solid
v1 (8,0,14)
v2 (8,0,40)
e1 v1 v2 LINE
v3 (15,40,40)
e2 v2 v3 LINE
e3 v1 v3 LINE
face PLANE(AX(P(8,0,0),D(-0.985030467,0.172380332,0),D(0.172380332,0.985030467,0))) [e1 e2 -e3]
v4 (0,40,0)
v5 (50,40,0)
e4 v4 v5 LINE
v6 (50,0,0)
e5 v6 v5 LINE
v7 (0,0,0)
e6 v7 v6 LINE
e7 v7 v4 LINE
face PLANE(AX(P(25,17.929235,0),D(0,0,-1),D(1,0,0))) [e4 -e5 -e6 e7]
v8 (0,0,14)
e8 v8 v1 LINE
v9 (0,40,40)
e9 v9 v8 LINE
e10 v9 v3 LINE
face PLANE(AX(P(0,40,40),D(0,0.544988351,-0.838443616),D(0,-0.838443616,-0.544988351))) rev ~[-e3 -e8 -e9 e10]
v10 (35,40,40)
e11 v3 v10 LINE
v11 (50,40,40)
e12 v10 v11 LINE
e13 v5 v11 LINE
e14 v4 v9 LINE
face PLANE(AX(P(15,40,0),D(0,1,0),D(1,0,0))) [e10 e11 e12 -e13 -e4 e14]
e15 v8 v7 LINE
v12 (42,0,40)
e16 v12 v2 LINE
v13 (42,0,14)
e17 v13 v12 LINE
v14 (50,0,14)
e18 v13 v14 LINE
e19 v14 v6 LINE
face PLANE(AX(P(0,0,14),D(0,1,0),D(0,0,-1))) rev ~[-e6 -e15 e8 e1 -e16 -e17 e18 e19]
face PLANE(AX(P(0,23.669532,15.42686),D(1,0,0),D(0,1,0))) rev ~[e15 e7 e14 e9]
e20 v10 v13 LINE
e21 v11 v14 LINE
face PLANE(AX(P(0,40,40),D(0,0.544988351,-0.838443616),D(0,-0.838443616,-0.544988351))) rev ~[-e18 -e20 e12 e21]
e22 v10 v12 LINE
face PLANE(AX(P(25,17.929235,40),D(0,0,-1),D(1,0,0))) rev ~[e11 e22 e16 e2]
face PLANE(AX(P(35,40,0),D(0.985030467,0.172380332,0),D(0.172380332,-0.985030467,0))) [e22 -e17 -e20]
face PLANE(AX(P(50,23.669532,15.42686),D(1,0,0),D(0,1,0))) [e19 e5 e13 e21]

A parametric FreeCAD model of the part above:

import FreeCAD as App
import Part
import Sketcher


def add_polygon(sketch, points):
    """Adds a closed chain of lines whose ends are joined by coincident constraints."""
    first, n = sketch.GeometryCount, len(points)
    for a, b in zip(points, points[1:] + points[:1]):
        sketch.addGeometry(Part.LineSegment(App.Vector(*a, 0), App.Vector(*b, 0)), False)
    for i in range(n):
        sketch.addConstraint(Sketcher.Constraint("Coincident", first + i, 2, first + (i + 1) % n, 1))

doc = App.newDocument("Part")
body = doc.addObject("PartDesign::Body", "Body")

# Sketch on YZ plane
sketch1 = body.newObject("Sketcher::SketchObject", "Sketch")
sketch1.AttachmentSupport = (doc.getObject("YZ_Plane"), [""])
sketch1.MapMode = "FlatFace"
add_polygon(sketch1, [(0, 14), (0, 0), (40, 0), (40, 40)])  # lines 0-3
sketch1.addConstraint([
    Sketcher.Constraint("Vertical", 0),
    Sketcher.Constraint("Horizontal", 1),
    Sketcher.Constraint("Vertical", 2),
    Sketcher.Constraint("Coincident", 0, 2, -1, 1),
    Sketcher.Constraint("Equal", 1, 2),
    Sketcher.Constraint("DistanceX", 1, 1, 1, 2, 40.0),
    Sketcher.Constraint("DistanceY", 0, 2, 0, 1, 14.0),
])
pad1 = body.newObject("PartDesign::Pad", "Pad")
pad1.Profile = sketch1
pad1.Length = 50

# Sketch on XY plane
sketch2 = body.newObject("Sketcher::SketchObject", "Sketch001")
sketch2.AttachmentSupport = (doc.getObject("XY_Plane"), [""])
sketch2.MapMode = "FlatFace"
add_polygon(sketch2, [(42, 0), (8, 0), (15, 40), (35, 40)])  # lines 0-3
sketch2.addConstraint([
    Sketcher.Constraint("Horizontal", 0),
    Sketcher.Constraint("Horizontal", 2),
    Sketcher.Constraint("PointOnObject", 0, 2, -1),
    Sketcher.Constraint("Equal", 1, 3),
    Sketcher.Constraint("DistanceX", 0, 2, 0, 1, 34.0),
    Sketcher.Constraint("DistanceX", 2, 1, 2, 2, 20.0),
    Sketcher.Constraint("DistanceX", -1, 1, 0, 2, 8.0),
    Sketcher.Constraint("DistanceY", -1, 1, 1, 2, 40.0),
])
pad2 = body.newObject("PartDesign::Pad", "Pad001")
pad2.Profile = sketch2
pad2.Length = 40

doc.recompute()
